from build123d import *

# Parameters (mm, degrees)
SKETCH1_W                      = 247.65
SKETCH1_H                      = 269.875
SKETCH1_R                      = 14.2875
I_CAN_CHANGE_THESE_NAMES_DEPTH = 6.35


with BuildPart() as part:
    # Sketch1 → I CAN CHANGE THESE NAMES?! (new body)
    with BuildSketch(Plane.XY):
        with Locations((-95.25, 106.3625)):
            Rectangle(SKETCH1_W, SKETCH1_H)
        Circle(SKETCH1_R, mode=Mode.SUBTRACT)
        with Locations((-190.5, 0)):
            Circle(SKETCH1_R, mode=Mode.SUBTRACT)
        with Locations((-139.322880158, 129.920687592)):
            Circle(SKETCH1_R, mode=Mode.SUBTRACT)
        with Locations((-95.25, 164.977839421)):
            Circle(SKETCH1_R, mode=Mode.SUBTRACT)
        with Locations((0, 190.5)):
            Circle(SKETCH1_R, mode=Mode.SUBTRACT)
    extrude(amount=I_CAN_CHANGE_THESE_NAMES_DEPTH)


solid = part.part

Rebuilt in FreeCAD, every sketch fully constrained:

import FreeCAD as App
import Part
import Sketcher

V = App.Vector
Q = App.Units.Quantity


def add_polygon(sketch, points):
    """Adds a closed chain of lines whose ends are joined by coincident constraints."""
    first, n = sketch.GeometryCount, len(points)
    for a, b in zip(points, points[1:] + points[:1]):
        sketch.addGeometry(Part.LineSegment(App.Vector(*a, 0), App.Vector(*b, 0)), False)
    for i in range(n):
        sketch.addConstraint(Sketcher.Constraint("Coincident", first + i, 2, first + (i + 1) % n, 1))

doc = App.newDocument("Part")
body = doc.addObject("PartDesign::Body", "Body")

# Sketch on XY plane
sketch1 = body.newObject("Sketcher::SketchObject", "Sketch")
sketch1.AttachmentSupport = (doc.getObject("XY_Plane"), [""])
sketch1.MapMode = "FlatFace"
add_polygon(sketch1, [(-219, 241), (-219, -29), (29, -29), (29, 241)])  # lines 0-3
sketch1.addGeometry(Part.Circle(V(-190, 0, 0), V(0, 0, 1), 14), False)  # 4
sketch1.addGeometry(Part.Circle(V(0, 0, 0), V(0, 0, 1), 14), False)  # 5
sketch1.addGeometry(Part.Circle(V(-139, 130, 0), V(0, 0, 1), 14), False)  # 6
sketch1.addGeometry(Part.Circle(V(-95, 165, 0), V(0, 0, 1), 14), False)  # 7
sketch1.addGeometry(Part.Circle(V(0, 190, 0), V(0, 0, 1), 14), False)  # 8
sketch1.addConstraint([
    Sketcher.Constraint("Vertical", 0),
    Sketcher.Constraint("Horizontal", 1),
    Sketcher.Constraint("Vertical", 2),
    Sketcher.Constraint("Horizontal", 3),
    Sketcher.Constraint("Coincident", 5, 3, -1, 1),
    Sketcher.Constraint("Equal", 4, 5),
    Sketcher.Constraint("Equal", 5, 6),
    Sketcher.Constraint("Equal", 6, 7),
    Sketcher.Constraint("Equal", 7, 8),
    Sketcher.Constraint("PointOnObject", 4, 3, -1),
    Sketcher.Constraint("PointOnObject", 8, 3, -2),
    Sketcher.Constraint("Diameter", 4, Q("1.125 in")),
    Sketcher.Constraint("DistanceY", 8, 3, 2, 2, Q("2 in")),
    Sketcher.Constraint("DistanceX", 1, 1, 1, 2, Q("9.75 in")),
    Sketcher.Constraint("DistanceX", 4, 3, -1, 1, Q("7.5 in")),
    Sketcher.Constraint("DistanceY", -1, 1, 8, 3, Q("7.5 in")),
    Sketcher.Constraint("DistanceY", 0, 2, 0, 1, Q("10.625 in")),
    Sketcher.Constraint("DistanceX", 7, 3, -1, 1, Q("3.75 in")),
    Sketcher.Constraint("DistanceX", 0, 2, -1, 1, Q("8.625 in")),
    Sketcher.Constraint("DistanceX", 6, 3, -1, 1, 139.32288),
    Sketcher.Constraint("DistanceY", -1, 1, 7, 3, 164.977839),
    Sketcher.Constraint("DistanceY", 6, 3, 7, 3, 35.057152),
])
pad1 = body.newObject("PartDesign::Pad", "Pad")
pad1.Profile = sketch1
pad1.Length = Q("0.25 in")

doc.recompute()
